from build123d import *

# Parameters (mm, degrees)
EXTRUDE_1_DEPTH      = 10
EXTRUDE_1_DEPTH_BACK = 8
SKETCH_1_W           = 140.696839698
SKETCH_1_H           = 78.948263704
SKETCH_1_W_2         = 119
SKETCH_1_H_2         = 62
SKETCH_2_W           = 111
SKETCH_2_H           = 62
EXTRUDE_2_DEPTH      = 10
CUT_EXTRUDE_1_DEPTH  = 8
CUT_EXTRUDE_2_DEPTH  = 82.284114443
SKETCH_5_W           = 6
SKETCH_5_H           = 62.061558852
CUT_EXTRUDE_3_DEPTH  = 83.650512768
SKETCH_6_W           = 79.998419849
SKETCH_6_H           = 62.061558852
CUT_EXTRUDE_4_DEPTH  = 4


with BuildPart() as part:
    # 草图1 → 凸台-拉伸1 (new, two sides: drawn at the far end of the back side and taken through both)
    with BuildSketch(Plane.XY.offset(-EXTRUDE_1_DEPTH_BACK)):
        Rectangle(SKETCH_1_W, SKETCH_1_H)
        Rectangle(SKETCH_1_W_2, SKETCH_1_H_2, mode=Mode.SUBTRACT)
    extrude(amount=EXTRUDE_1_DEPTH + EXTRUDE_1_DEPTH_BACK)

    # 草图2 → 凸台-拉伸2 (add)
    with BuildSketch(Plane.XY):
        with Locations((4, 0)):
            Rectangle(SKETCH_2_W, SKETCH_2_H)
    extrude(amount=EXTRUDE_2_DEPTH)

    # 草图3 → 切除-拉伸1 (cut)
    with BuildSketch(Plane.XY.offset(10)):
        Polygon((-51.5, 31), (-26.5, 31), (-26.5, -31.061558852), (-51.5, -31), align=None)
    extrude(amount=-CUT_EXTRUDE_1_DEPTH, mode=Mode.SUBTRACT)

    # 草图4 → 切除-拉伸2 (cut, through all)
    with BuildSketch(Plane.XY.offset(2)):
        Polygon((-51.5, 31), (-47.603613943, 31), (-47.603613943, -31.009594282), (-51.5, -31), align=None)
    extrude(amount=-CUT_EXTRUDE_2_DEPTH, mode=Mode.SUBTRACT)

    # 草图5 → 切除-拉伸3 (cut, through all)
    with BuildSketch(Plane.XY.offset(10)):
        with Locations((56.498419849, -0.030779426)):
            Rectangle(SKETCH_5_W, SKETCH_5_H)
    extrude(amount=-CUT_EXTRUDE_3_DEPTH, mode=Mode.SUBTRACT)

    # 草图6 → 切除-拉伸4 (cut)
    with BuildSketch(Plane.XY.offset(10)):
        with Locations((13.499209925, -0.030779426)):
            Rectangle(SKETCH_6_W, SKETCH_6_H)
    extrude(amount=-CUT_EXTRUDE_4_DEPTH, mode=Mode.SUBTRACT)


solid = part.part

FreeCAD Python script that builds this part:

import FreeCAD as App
import Part
import Sketcher

doc = App.newDocument("Part")
body = doc.addObject("PartDesign::Body", "Body")

sketch1 = body.newObject("Sketcher::SketchObject", "Sketch")
sketch1.AttachmentSupport = (doc.getObject("XY_Plane"), [""])
sketch1.MapMode = "FlatFace"
sketch1.addGeometry(Part.LineSegment(App.Vector(-70, 39, 0), App.Vector(-70, -39, 0)), False)
sketch1.addGeometry(Part.LineSegment(App.Vector(-70, -39, 0), App.Vector(70, -39, 0)), False)
sketch1.addGeometry(Part.LineSegment(App.Vector(70, -39, 0), App.Vector(70, 39, 0)), False)
sketch1.addGeometry(Part.LineSegment(App.Vector(70, 39, 0), App.Vector(-70, 39, 0)), False)
sketch1.addGeometry(Part.LineSegment(App.Vector(60, -31, 0), App.Vector(-60, -31, 0)), False)
sketch1.addGeometry(Part.LineSegment(App.Vector(-60, -31, 0), App.Vector(-60, 31, 0)), False)
sketch1.addGeometry(Part.LineSegment(App.Vector(-60, 31, 0), App.Vector(60, 31, 0)), False)
sketch1.addGeometry(Part.LineSegment(App.Vector(60, 31, 0), App.Vector(60, -31, 0)), False)
sketch1.addConstraint(Sketcher.Constraint("Coincident", 0, 2, 1, 1))
sketch1.addConstraint(Sketcher.Constraint("Coincident", 1, 2, 2, 1))
sketch1.addConstraint(Sketcher.Constraint("Coincident", 2, 2, 3, 1))
sketch1.addConstraint(Sketcher.Constraint("Coincident", 3, 2, 0, 1))
sketch1.addConstraint(Sketcher.Constraint("Coincident", 4, 2, 5, 1))
sketch1.addConstraint(Sketcher.Constraint("Coincident", 5, 2, 6, 1))
sketch1.addConstraint(Sketcher.Constraint("Coincident", 6, 2, 7, 1))
sketch1.addConstraint(Sketcher.Constraint("Coincident", 7, 2, 4, 1))
sketch1.addConstraint(Sketcher.Constraint("Vertical", 0))
sketch1.addConstraint(Sketcher.Constraint("Horizontal", 1))
sketch1.addConstraint(Sketcher.Constraint("Vertical", 2))
sketch1.addConstraint(Sketcher.Constraint("Horizontal", 3))
sketch1.addConstraint(Sketcher.Constraint("Horizontal", 4))
sketch1.addConstraint(Sketcher.Constraint("Vertical", 5))
sketch1.addConstraint(Sketcher.Constraint("Horizontal", 6))
sketch1.addConstraint(Sketcher.Constraint("Vertical", 7))
sketch1.addConstraint(Sketcher.Constraint("Symmetric", 0, 2, 2, 2, -1, 1))
sketch1.addConstraint(Sketcher.Constraint("Symmetric", 4, 2, 6, 2, -1, 1))
sketch1.addConstraint(Sketcher.Constraint("DistanceX", 4, 2, 4, 1, 119.0))
sketch1.addConstraint(Sketcher.Constraint("DistanceY", 5, 1, 5, 2, 62.0))
sketch1.addConstraint(Sketcher.Constraint("DistanceX", 1, 1, 1, 2, 140.69684))
sketch1.addConstraint(Sketcher.Constraint("DistanceY", 0, 2, 0, 1, 78.948264))
pad1 = body.newObject("PartDesign::Pad", "Pad")
pad1.Profile = sketch1
pad1.Type = "TwoLengths"
pad1.Length = 10
pad1.Length2 = 8

sketch2 = body.newObject("Sketcher::SketchObject", "Sketch001")
sketch2.AttachmentSupport = (doc.getObject("XY_Plane"), [""])
sketch2.MapMode = "FlatFace"
sketch2.addGeometry(Part.LineSegment(App.Vector(-52, 31, 0), App.Vector(-52, -31, 0)), False)
sketch2.addGeometry(Part.LineSegment(App.Vector(-52, -31, 0), App.Vector(60, -31, 0)), False)
sketch2.addGeometry(Part.LineSegment(App.Vector(60, -31, 0), App.Vector(60, 31, 0)), False)
sketch2.addGeometry(Part.LineSegment(App.Vector(60, 31, 0), App.Vector(-52, 31, 0)), False)
sketch2.addConstraint(Sketcher.Constraint("Coincident", 0, 2, 1, 1))
sketch2.addConstraint(Sketcher.Constraint("Coincident", 1, 2, 2, 1))
sketch2.addConstraint(Sketcher.Constraint("Coincident", 2, 2, 3, 1))
sketch2.addConstraint(Sketcher.Constraint("Coincident", 3, 2, 0, 1))
sketch2.addConstraint(Sketcher.Constraint("Vertical", 0))
sketch2.addConstraint(Sketcher.Constraint("Horizontal", 1))
sketch2.addConstraint(Sketcher.Constraint("Vertical", 2))
sketch2.addConstraint(Sketcher.Constraint("Horizontal", 3))
sketch2.addConstraint(Sketcher.Constraint("DistanceX", 1, 1, 1, 2, 111.0))
sketch2.addConstraint(Sketcher.Constraint("DistanceY", 0, 2, 0, 1, 62.0))
sketch2.addConstraint(Sketcher.Constraint("DistanceY", 0, 2, -1, 1, 31.0))
sketch2.addConstraint(Sketcher.Constraint("DistanceX", 0, 2, -1, 1, 51.5))
pad2 = body.newObject("PartDesign::Pad", "Pad001")
pad2.Profile = sketch2
pad2.Length = 10

sketch3 = body.newObject("Sketcher::SketchObject", "Sketch002")
sketch3.AttachmentSupport = (doc.getObject("XY_Plane"), [""])
sketch3.MapMode = "FlatFace"
sketch3.AttachmentOffset = App.Placement(App.Vector(0, 0, 10), App.Rotation())
sketch3.addGeometry(Part.LineSegment(App.Vector(-26, 31, 0), App.Vector(-52, 31, 0)), False)
sketch3.addGeometry(Part.LineSegment(App.Vector(-52, 31, 0), App.Vector(-52, -31, 0)), False)
sketch3.addGeometry(Part.LineSegment(App.Vector(-52, -31, 0), App.Vector(-26, -31, 0)), False)
sketch3.addGeometry(Part.LineSegment(App.Vector(-26, -31, 0), App.Vector(-26, 31, 0)), False)
sketch3.addConstraint(Sketcher.Constraint("Coincident", 0, 2, 1, 1))
sketch3.addConstraint(Sketcher.Constraint("Coincident", 1, 2, 2, 1))
sketch3.addConstraint(Sketcher.Constraint("Coincident", 2, 2, 3, 1))
sketch3.addConstraint(Sketcher.Constraint("Coincident", 3, 2, 0, 1))
sketch3.addConstraint(Sketcher.Constraint("Horizontal", 0))
sketch3.addConstraint(Sketcher.Constraint("Vertical", 1))
sketch3.addConstraint(Sketcher.Constraint("Vertical", 3))
sketch3.addConstraint(Sketcher.Constraint("DistanceX", 0, 2, 0, 1, 25.0))
sketch3.addConstraint(Sketcher.Constraint("DistanceY", 1, 2, 1, 1, 62.0))
sketch3.addConstraint(Sketcher.Constraint("DistanceY", -1, 1, 0, 2, 31.0))
sketch3.addConstraint(Sketcher.Constraint("DistanceX", 0, 2, -1, 1, 51.5))
sketch3.addConstraint(Sketcher.Constraint("DistanceY", 3, 1, 3, 2, 62.061559))
pocket1 = body.newObject("PartDesign::Pocket", "Pocket")
pocket1.Profile = sketch3
pocket1.Length = 8

sketch4 = body.newObject("Sketcher::SketchObject", "Sketch003")
sketch4.AttachmentSupport = (doc.getObject("XY_Plane"), [""])
sketch4.MapMode = "FlatFace"
sketch4.AttachmentOffset = App.Placement(App.Vector(0, 0, 2), App.Rotation())
sketch4.addGeometry(Part.LineSegment(App.Vector(-47.6, 31, 0), App.Vector(-51.5, 31, 0)), False)
sketch4.addGeometry(Part.LineSegment(App.Vector(-51.5, 31, 0), App.Vector(-51.5, -31, 0)), False)
sketch4.addGeometry(Part.LineSegment(App.Vector(-51.5, -31, 0), App.Vector(-47.6, -31, 0)), False)
sketch4.addGeometry(Part.LineSegment(App.Vector(-47.6, -31, 0), App.Vector(-47.6, 31, 0)), False)
sketch4.addConstraint(Sketcher.Constraint("Coincident", 0, 2, 1, 1))
sketch4.addConstraint(Sketcher.Constraint("Coincident", 1, 2, 2, 1))
sketch4.addConstraint(Sketcher.Constraint("Coincident", 2, 2, 3, 1))
sketch4.addConstraint(Sketcher.Constraint("Coincident", 3, 2, 0, 1))
sketch4.addConstraint(Sketcher.Constraint("Horizontal", 0))
sketch4.addConstraint(Sketcher.Constraint("Vertical", 1))
sketch4.addConstraint(Sketcher.Constraint("Vertical", 3))
sketch4.addConstraint(Sketcher.Constraint("DistanceY", 1, 2, 1, 1, 62.0))
sketch4.addConstraint(Sketcher.Constraint("DistanceY", -1, 1, 0, 2, 31.0))
sketch4.addConstraint(Sketcher.Constraint("DistanceX", 0, 2, -1, 1, 51.5))
sketch4.addConstraint(Sketcher.Constraint("DistanceX", 0, 2, 0, 1, 3.896386))
sketch4.addConstraint(Sketcher.Constraint("DistanceY", 3, 1, 3, 2, 62.009594))
pocket2 = body.newObject("PartDesign::Pocket", "Pocket001")
pocket2.Profile = sketch4
pocket2.Type = "ThroughAll"

sketch5 = body.newObject("Sketcher::SketchObject", "Sketch004")
sketch5.AttachmentSupport = (doc.getObject("XY_Plane"), [""])
sketch5.MapMode = "FlatFace"
sketch5.AttachmentOffset = App.Placement(App.Vector(0, 0, 10), App.Rotation())
sketch5.addGeometry(Part.LineSegment(App.Vector(53, 31, 0), App.Vector(53, -31, 0)), False)
sketch5.addGeometry(Part.LineSegment(App.Vector(53, -31, 0), App.Vector(59, -31, 0)), False)
sketch5.addGeometry(Part.LineSegment(App.Vector(59, -31, 0), App.Vector(59, 31, 0)), False)
sketch5.addGeometry(Part.LineSegment(App.Vector(59, 31, 0), App.Vector(53, 31, 0)), False)
sketch5.addConstraint(Sketcher.Constraint("Coincident", 0, 2, 1, 1))
sketch5.addConstraint(Sketcher.Constraint("Coincident", 1, 2, 2, 1))
sketch5.addConstraint(Sketcher.Constraint("Coincident", 2, 2, 3, 1))
sketch5.addConstraint(Sketcher.Constraint("Coincident", 3, 2, 0, 1))
sketch5.addConstraint(Sketcher.Constraint("Vertical", 0))
sketch5.addConstraint(Sketcher.Constraint("Horizontal", 1))
sketch5.addConstraint(Sketcher.Constraint("Vertical", 2))
sketch5.addConstraint(Sketcher.Constraint("Horizontal", 3))
sketch5.addConstraint(Sketcher.Constraint("DistanceX", 1, 1, 1, 2, 6.0))
sketch5.addConstraint(Sketcher.Constraint("DistanceY", -1, 1, 2, 2, 31.0))
sketch5.addConstraint(Sketcher.Constraint("DistanceY", 0, 2, 0, 1, 62.061559))
sketch5.addConstraint(Sketcher.Constraint("DistanceX", -1, 1, 0, 2, 53.49842))
pocket3 = body.newObject("PartDesign::Pocket", "Pocket002")
pocket3.Profile = sketch5
pocket3.Type = "ThroughAll"

sketch6 = body.newObject("Sketcher::SketchObject", "Sketch005")
sketch6.AttachmentSupport = (doc.getObject("XY_Plane"), [""])
sketch6.MapMode = "FlatFace"
sketch6.AttachmentOffset = App.Placement(App.Vector(0, 0, 10), App.Rotation())
sketch6.addGeometry(Part.LineSegment(App.Vector(-26, 31, 0), App.Vector(-26, -31, 0)), False)
sketch6.addGeometry(Part.LineSegment(App.Vector(-26, -31, 0), App.Vector(53, -31, 0)), False)
sketch6.addGeometry(Part.LineSegment(App.Vector(53, -31, 0), App.Vector(53, 31, 0)), False)
sketch6.addGeometry(Part.LineSegment(App.Vector(53, 31, 0), App.Vector(-26, 31, 0)), False)
sketch6.addConstraint(Sketcher.Constraint("Coincident", 0, 2, 1, 1))
sketch6.addConstraint(Sketcher.Constraint("Coincident", 1, 2, 2, 1))
sketch6.addConstraint(Sketcher.Constraint("Coincident", 2, 2, 3, 1))
sketch6.addConstraint(Sketcher.Constraint("Coincident", 3, 2, 0, 1))
sketch6.addConstraint(Sketcher.Constraint("Vertical", 0))
sketch6.addConstraint(Sketcher.Constraint("Horizontal", 1))
sketch6.addConstraint(Sketcher.Constraint("Vertical", 2))
sketch6.addConstraint(Sketcher.Constraint("Horizontal", 3))
sketch6.addConstraint(Sketcher.Constraint("DistanceY", -1, 1, 2, 2, 31.0))
sketch6.addConstraint(Sketcher.Constraint("DistanceX", 0, 2, -1, 1, 26.5))
sketch6.addConstraint(Sketcher.Constraint("DistanceX", 1, 1, 1, 2, 79.99842))
sketch6.addConstraint(Sketcher.Constraint("DistanceY", 0, 2, 0, 1, 62.061559))
pocket4 = body.newObject("PartDesign::Pocket", "Pocket003")
pocket4.Profile = sketch6
pocket4.Length = 4

doc.recompute()
